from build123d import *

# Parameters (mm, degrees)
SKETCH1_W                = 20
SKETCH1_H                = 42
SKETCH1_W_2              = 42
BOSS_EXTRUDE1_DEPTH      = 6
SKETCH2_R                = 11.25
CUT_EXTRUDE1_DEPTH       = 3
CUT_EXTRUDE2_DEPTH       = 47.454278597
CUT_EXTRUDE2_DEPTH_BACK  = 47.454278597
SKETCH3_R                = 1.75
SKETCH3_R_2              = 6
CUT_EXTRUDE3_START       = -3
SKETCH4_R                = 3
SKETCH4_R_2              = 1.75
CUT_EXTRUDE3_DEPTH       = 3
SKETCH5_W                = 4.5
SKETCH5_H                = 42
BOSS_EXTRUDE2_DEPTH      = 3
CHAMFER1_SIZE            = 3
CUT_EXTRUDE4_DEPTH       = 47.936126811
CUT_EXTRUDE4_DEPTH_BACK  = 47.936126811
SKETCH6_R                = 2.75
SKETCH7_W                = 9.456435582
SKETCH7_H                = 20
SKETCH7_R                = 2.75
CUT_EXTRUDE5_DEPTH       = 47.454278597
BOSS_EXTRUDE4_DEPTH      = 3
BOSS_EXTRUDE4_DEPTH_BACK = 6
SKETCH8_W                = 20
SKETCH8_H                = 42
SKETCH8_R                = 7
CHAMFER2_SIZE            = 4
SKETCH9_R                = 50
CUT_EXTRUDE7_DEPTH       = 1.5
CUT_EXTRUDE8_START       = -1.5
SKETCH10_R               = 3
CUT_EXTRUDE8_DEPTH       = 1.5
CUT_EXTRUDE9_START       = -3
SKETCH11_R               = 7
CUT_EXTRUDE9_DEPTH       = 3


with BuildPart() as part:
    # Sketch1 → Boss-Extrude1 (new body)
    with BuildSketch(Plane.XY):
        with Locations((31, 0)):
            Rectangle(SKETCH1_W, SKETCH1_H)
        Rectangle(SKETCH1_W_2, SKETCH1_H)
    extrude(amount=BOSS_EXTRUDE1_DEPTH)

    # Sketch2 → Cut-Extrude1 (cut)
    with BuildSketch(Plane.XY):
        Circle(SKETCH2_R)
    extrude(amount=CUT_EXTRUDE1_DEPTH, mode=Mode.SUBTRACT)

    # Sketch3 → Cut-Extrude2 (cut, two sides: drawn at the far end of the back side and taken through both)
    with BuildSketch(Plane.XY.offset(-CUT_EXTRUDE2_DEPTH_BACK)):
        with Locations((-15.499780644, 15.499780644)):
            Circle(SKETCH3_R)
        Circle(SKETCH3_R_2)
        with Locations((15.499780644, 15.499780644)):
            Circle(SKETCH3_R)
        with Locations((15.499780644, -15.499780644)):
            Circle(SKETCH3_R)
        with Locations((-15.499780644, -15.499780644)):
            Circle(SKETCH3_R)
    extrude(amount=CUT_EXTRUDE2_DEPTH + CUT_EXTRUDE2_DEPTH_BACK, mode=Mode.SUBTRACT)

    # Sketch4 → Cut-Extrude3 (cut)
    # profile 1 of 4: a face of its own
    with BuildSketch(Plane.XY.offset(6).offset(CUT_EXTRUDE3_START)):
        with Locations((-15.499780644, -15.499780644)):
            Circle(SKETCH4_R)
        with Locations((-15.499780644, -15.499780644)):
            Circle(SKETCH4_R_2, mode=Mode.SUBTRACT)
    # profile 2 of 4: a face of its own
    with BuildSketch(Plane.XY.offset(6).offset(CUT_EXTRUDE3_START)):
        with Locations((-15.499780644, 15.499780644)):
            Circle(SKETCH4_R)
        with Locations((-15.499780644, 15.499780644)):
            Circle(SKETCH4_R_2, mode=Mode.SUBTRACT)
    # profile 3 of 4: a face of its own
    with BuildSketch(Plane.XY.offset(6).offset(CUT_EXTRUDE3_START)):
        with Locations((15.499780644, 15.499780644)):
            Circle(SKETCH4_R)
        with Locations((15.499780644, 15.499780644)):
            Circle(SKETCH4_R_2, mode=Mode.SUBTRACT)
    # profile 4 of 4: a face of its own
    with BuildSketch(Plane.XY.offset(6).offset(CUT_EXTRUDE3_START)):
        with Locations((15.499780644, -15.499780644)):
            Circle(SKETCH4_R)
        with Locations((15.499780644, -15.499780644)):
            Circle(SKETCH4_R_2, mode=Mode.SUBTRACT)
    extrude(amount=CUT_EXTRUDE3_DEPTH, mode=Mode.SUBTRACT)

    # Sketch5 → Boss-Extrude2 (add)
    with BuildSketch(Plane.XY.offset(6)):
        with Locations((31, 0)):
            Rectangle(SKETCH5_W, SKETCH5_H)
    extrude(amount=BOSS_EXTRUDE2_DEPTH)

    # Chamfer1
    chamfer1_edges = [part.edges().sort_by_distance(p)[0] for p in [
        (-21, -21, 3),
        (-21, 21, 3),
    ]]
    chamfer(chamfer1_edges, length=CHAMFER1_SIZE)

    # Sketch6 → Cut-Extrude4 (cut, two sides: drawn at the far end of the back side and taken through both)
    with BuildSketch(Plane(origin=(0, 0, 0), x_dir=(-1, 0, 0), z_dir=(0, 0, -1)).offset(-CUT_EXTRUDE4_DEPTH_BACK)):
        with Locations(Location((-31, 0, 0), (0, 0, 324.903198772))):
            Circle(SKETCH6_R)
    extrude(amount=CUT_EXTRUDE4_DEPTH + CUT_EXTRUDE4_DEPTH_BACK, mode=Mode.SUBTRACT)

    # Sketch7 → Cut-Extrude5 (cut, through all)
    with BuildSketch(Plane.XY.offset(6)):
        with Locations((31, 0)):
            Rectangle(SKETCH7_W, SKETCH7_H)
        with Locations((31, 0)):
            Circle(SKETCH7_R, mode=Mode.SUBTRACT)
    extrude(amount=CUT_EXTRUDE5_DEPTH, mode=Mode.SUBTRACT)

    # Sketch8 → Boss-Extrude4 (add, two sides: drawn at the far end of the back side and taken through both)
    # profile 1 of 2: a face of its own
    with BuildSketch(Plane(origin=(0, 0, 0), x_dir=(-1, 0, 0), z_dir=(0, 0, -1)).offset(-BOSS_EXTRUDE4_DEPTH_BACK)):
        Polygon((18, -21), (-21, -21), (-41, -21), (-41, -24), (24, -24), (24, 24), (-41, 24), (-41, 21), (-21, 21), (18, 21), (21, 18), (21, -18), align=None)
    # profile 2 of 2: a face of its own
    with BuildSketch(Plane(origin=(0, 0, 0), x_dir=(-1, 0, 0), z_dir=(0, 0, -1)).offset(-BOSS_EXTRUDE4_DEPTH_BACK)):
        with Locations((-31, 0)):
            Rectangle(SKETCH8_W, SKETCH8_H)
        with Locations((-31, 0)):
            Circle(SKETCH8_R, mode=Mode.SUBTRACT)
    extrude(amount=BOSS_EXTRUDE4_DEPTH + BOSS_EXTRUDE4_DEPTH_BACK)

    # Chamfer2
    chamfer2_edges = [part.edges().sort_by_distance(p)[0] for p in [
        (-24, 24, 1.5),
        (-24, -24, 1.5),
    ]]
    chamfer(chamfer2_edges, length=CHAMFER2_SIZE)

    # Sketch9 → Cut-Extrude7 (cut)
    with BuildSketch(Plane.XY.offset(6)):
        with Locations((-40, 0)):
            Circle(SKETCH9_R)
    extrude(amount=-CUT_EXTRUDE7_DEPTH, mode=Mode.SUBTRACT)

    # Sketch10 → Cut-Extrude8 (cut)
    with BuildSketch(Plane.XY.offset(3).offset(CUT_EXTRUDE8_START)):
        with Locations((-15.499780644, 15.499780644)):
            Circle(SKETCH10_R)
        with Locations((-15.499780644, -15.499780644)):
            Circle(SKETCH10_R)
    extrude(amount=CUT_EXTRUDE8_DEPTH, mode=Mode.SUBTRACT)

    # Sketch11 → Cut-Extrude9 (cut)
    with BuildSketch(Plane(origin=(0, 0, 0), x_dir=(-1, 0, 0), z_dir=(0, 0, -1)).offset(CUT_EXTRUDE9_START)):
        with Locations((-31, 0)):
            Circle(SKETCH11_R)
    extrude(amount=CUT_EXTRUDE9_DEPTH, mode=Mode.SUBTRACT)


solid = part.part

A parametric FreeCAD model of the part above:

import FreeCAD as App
import Part
import Sketcher
from FreeCAD import Vector
Q = App.Units.Quantity


def edges_at(feature, points):
    """Names of the edges that pass closest to the given points."""
    edges = feature.Shape.Edges
    near = lambda p: min(range(len(edges)), key=lambda i: edges[i].distToShape(Part.Vertex(*p))[0])
    return sorted({f"Edge{near(p) + 1}" for p in points})

doc = App.newDocument("Part")
body = doc.addObject("PartDesign::Body", "Body")

sketch1 = doc.addObject("Sketcher::SketchObject", "Sketch")
body.addObject(sketch1)
sketch1.AttachmentSupport = (doc.XY_Plane, [""])
sketch1.MapMode = "FlatFace"
sketch1.addGeometry(Part.LineSegment(Vector(41, -21, 0), Vector(41, 21, 0)), False)
sketch1.addGeometry(Part.LineSegment(Vector(41, 21, 0), Vector(-21, 21, 0)), False)
sketch1.addGeometry(Part.LineSegment(Vector(-21, 21, 0), Vector(-21, -21, 0)), False)
sketch1.addGeometry(Part.LineSegment(Vector(-21, -21, 0), Vector(41, -21, 0)), False)
sketch1.addConstraint(Sketcher.Constraint("Coincident", 0, 2, 1, 1))
sketch1.addConstraint(Sketcher.Constraint("Coincident", 1, 2, 2, 1))
sketch1.addConstraint(Sketcher.Constraint("Coincident", 2, 2, 3, 1))
sketch1.addConstraint(Sketcher.Constraint("Coincident", 3, 2, 0, 1))
sketch1.addConstraint(Sketcher.Constraint("Vertical", 0))
sketch1.addConstraint(Sketcher.Constraint("Horizontal", 1))
sketch1.addConstraint(Sketcher.Constraint("Vertical", 2))
sketch1.addConstraint(Sketcher.Constraint("Horizontal", 3))
sketch1.addConstraint(Sketcher.Constraint("DistanceX", 1, 2, 1, 1, Q("62 mm")))
sketch1.addConstraint(Sketcher.Constraint("DistanceY", 0, 1, 0, 2, Q("42 mm")))
sketch1.addConstraint(Sketcher.Constraint("DistanceX", -1, 1, 0, 2, Q("41 mm")))
sketch1.addConstraint(Sketcher.Constraint("DistanceY", -1, 1, 0, 2, Q("21 mm")))
pad1 = doc.addObject("PartDesign::Pad", "Pad")
body.addObject(pad1)
pad1.Profile = sketch1
pad1.Length = 6

sketch2 = doc.addObject("Sketcher::SketchObject", "Sketch001")
body.addObject(sketch2)
sketch2.AttachmentSupport = (doc.XY_Plane, [""])
sketch2.MapMode = "FlatFace"
sketch2.addGeometry(Part.Circle(Vector(0, 0, 0), Vector(0, 0, 1), 11.25), False)
sketch2.addConstraint(Sketcher.Constraint("Coincident", 0, 3, -1, 1))
sketch2.addConstraint(Sketcher.Constraint("Diameter", 0, Q("22.5 mm")))
pocket1 = doc.addObject("PartDesign::Pocket", "Pocket")
body.addObject(pocket1)
pocket1.Profile = sketch2
pocket1.Length = 3
pocket1.Reversed = True

sketch3 = doc.addObject("Sketcher::SketchObject", "Sketch002")
body.addObject(sketch3)
sketch3.AttachmentSupport = (doc.XY_Plane, [""])
sketch3.MapMode = "FlatFace"
sketch3.addGeometry(Part.Circle(Vector(-15.499781, 15.499781, 0), Vector(0, 0, 1), 1.75), False)
sketch3.addGeometry(Part.Circle(Vector(0, 0, 0), Vector(0, 0, 1), 6), False)
sketch3.addGeometry(Part.Circle(Vector(15.499781, 15.499781, 0), Vector(0, 0, 1), 1.75), False)
sketch3.addGeometry(Part.Circle(Vector(15.499781, -15.499781, 0), Vector(0, 0, 1), 1.75), False)
sketch3.addGeometry(Part.Circle(Vector(-15.499781, -15.499781, 0), Vector(0, 0, 1), 1.75), False)
sketch3.addConstraint(Sketcher.Constraint("Coincident", 1, 3, -1, 1))
sketch3.addConstraint(Sketcher.Constraint("Equal", 0, 2))
sketch3.addConstraint(Sketcher.Constraint("Equal", 2, 3))
sketch3.addConstraint(Sketcher.Constraint("Equal", 3, 4))
sketch3.addConstraint(Sketcher.Constraint("Symmetric", 0, 3, 3, 3, -1, 1))
sketch3.addConstraint(Sketcher.Constraint("Symmetric", 2, 3, 4, 3, -1, 1))
sketch3.addConstraint(Sketcher.Constraint("Symmetric", 0, 3, 2, 3, -2))
sketch3.addConstraint(Sketcher.Constraint("Diameter", 1, Q("12 mm")))
sketch3.addConstraint(Sketcher.Constraint("Diameter", 0, Q("3.5 mm")))
sketch3.addConstraint(Sketcher.Constraint("DistanceX", 0, 3, -1, 1, Q("15.499781 mm")))
sketch3.addConstraint(Sketcher.Constraint("DistanceY", -1, 1, 0, 3, Q("15.499781 mm")))
pocket2 = doc.addObject("PartDesign::Pocket", "Pocket001")
body.addObject(pocket2)
pocket2.Profile = sketch3
pocket2.Type = "ThroughAll"
pocket2.Midplane = True

sketch4 = doc.addObject("Sketcher::SketchObject", "Sketch003")
body.addObject(sketch4)
sketch4.AttachmentSupport = (doc.XY_Plane, [""])
sketch4.MapMode = "FlatFace"
sketch4.AttachmentOffset = App.Placement(Vector(0, 0, 3), App.Rotation())
sketch4.addGeometry(Part.Circle(Vector(-15.499781, -15.499781, 0), Vector(0, 0, 1), 3), False)
sketch4.addGeometry(Part.Circle(Vector(-15.499781, -15.499781, 0), Vector(0, 0, 1), 1.75), False)
sketch4.addGeometry(Part.Circle(Vector(-15.499781, 15.499781, 0), Vector(0, 0, 1), 3), False)
sketch4.addGeometry(Part.Circle(Vector(-15.499781, 15.499781, 0), Vector(0, 0, 1), 1.75), False)
sketch4.addGeometry(Part.Circle(Vector(15.499781, 15.499781, 0), Vector(0, 0, 1), 3), False)
sketch4.addGeometry(Part.Circle(Vector(15.499781, 15.499781, 0), Vector(0, 0, 1), 1.75), False)
sketch4.addGeometry(Part.Circle(Vector(15.499781, -15.499781, 0), Vector(0, 0, 1), 3), False)
sketch4.addGeometry(Part.Circle(Vector(15.499781, -15.499781, 0), Vector(0, 0, 1), 1.75), False)
sketch4.addConstraint(Sketcher.Constraint("Coincident", 1, 3, 0, 3))
sketch4.addConstraint(Sketcher.Constraint("Coincident", 3, 3, 2, 3))
sketch4.addConstraint(Sketcher.Constraint("Coincident", 5, 3, 4, 3))
sketch4.addConstraint(Sketcher.Constraint("Coincident", 7, 3, 6, 3))
sketch4.addConstraint(Sketcher.Constraint("Equal", 0, 2))
sketch4.addConstraint(Sketcher.Constraint("Equal", 1, 3))
sketch4.addConstraint(Sketcher.Constraint("Equal", 2, 4))
sketch4.addConstraint(Sketcher.Constraint("Equal", 3, 5))
sketch4.addConstraint(Sketcher.Constraint("Equal", 4, 6))
sketch4.addConstraint(Sketcher.Constraint("Equal", 5, 7))
sketch4.addConstraint(Sketcher.Constraint("Symmetric", 0, 3, 4, 3, -1, 1))
sketch4.addConstraint(Sketcher.Constraint("Symmetric", 2, 3, 6, 3, -1, 1))
sketch4.addConstraint(Sketcher.Constraint("Symmetric", 2, 3, 4, 3, -2))
sketch4.addConstraint(Sketcher.Constraint("Diameter", 0, Q("6 mm")))
sketch4.addConstraint(Sketcher.Constraint("Diameter", 1, Q("3.5 mm")))
sketch4.addConstraint(Sketcher.Constraint("DistanceX", 0, 3, -1, 1, Q("15.499781 mm")))
sketch4.addConstraint(Sketcher.Constraint("DistanceY", 0, 3, -1, 1, Q("15.499781 mm")))
pocket3 = doc.addObject("PartDesign::Pocket", "Pocket002")
body.addObject(pocket3)
pocket3.Profile = sketch4
pocket3.Length = 3
pocket3.Reversed = True

sketch5 = doc.addObject("Sketcher::SketchObject", "Sketch004")
body.addObject(sketch5)
sketch5.AttachmentSupport = (doc.XY_Plane, [""])
sketch5.MapMode = "FlatFace"
sketch5.AttachmentOffset = App.Placement(Vector(0, 0, 6), App.Rotation())
sketch5.addGeometry(Part.LineSegment(Vector(28.75, 21, 0), Vector(28.75, -21, 0)), False)
sketch5.addGeometry(Part.LineSegment(Vector(28.75, -21, 0), Vector(33.25, -21, 0)), False)
sketch5.addGeometry(Part.LineSegment(Vector(33.25, -21, 0), Vector(33.25, 21, 0)), False)
sketch5.addGeometry(Part.LineSegment(Vector(33.25, 21, 0), Vector(28.75, 21, 0)), False)
sketch5.addConstraint(Sketcher.Constraint("Coincident", 0, 2, 1, 1))
sketch5.addConstraint(Sketcher.Constraint("Coincident", 1, 2, 2, 1))
sketch5.addConstraint(Sketcher.Constraint("Coincident", 2, 2, 3, 1))
sketch5.addConstraint(Sketcher.Constraint("Coincident", 3, 2, 0, 1))
sketch5.addConstraint(Sketcher.Constraint("Vertical", 0))
sketch5.addConstraint(Sketcher.Constraint("Horizontal", 1))
sketch5.addConstraint(Sketcher.Constraint("Vertical", 2))
sketch5.addConstraint(Sketcher.Constraint("Horizontal", 3))
sketch5.addConstraint(Sketcher.Constraint("DistanceY", 0, 2, 0, 1, Q("42 mm")))
sketch5.addConstraint(Sketcher.Constraint("DistanceX", 1, 1, 1, 2, Q("4.5 mm")))
sketch5.addConstraint(Sketcher.Constraint("DistanceY", 0, 2, -1, 1, Q("21 mm")))
sketch5.addConstraint(Sketcher.Constraint("DistanceX", -1, 1, 0, 2, Q("28.75 mm")))
pad2 = doc.addObject("PartDesign::Pad", "Pad001")
body.addObject(pad2)
pad2.Profile = sketch5
pad2.Length = 3
doc.recompute()

chamfer = doc.addObject("PartDesign::Chamfer", "Chamfer")
body.addObject(chamfer)
chamfer.Base = (pad2, edges_at(pad2, [(-21, -21, 3), (-21, 21, 3)]))
chamfer.Size = 3

sketch6 = doc.addObject("Sketcher::SketchObject", "Sketch005")
body.addObject(sketch6)
sketch6.AttachmentSupport = (doc.XY_Plane, [""])
sketch6.MapMode = "FlatFace"
sketch6.addGeometry(Part.Circle(Vector(31, 0, 0), Vector(0, 0, 1), 2.75), False)
sketch6.addConstraint(Sketcher.Constraint("PointOnObject", 0, 3, -1))
sketch6.addConstraint(Sketcher.Constraint("Diameter", 0, Q("5.5 mm")))
sketch6.addConstraint(Sketcher.Constraint("DistanceX", -1, 1, 0, 3, Q("31 mm")))
pocket4 = doc.addObject("PartDesign::Pocket", "Pocket003")
body.addObject(pocket4)
pocket4.Profile = sketch6
pocket4.Type = "ThroughAll"
pocket4.Midplane = True

sketch7 = doc.addObject("Sketcher::SketchObject", "Sketch006")
body.addObject(sketch7)
sketch7.AttachmentSupport = (doc.XY_Plane, [""])
sketch7.MapMode = "FlatFace"
sketch7.AttachmentOffset = App.Placement(Vector(0, 0, 6), App.Rotation())
sketch7.addGeometry(Part.LineSegment(Vector(26.271782, 10, 0), Vector(26.271782, -10, 0)), False)
sketch7.addGeometry(Part.LineSegment(Vector(26.271782, -10, 0), Vector(35.728218, -10, 0)), False)
sketch7.addGeometry(Part.LineSegment(Vector(35.728218, -10, 0), Vector(35.728218, 10, 0)), False)
sketch7.addGeometry(Part.LineSegment(Vector(35.728218, 10, 0), Vector(26.271782, 10, 0)), False)
sketch7.addGeometry(Part.Circle(Vector(31, 0, 0), Vector(0, 0, 1), 2.75), False)
sketch7.addConstraint(Sketcher.Constraint("Coincident", 0, 2, 1, 1))
sketch7.addConstraint(Sketcher.Constraint("Coincident", 1, 2, 2, 1))
sketch7.addConstraint(Sketcher.Constraint("Coincident", 2, 2, 3, 1))
sketch7.addConstraint(Sketcher.Constraint("Coincident", 3, 2, 0, 1))
sketch7.addConstraint(Sketcher.Constraint("Vertical", 0))
sketch7.addConstraint(Sketcher.Constraint("Horizontal", 1))
sketch7.addConstraint(Sketcher.Constraint("Vertical", 2))
sketch7.addConstraint(Sketcher.Constraint("Horizontal", 3))
sketch7.addConstraint(Sketcher.Constraint("PointOnObject", 4, 3, -1))
sketch7.addConstraint(Sketcher.Constraint("Diameter", 4, Q("5.5 mm")))
sketch7.addConstraint(Sketcher.Constraint("DistanceY", 0, 2, 0, 1, Q("20 mm")))
sketch7.addConstraint(Sketcher.Constraint("DistanceX", -1, 1, 4, 3, Q("31 mm")))
sketch7.addConstraint(Sketcher.Constraint("DistanceY", 0, 2, -1, 1, Q("10 mm")))
sketch7.addConstraint(Sketcher.Constraint("DistanceX", 1, 1, 1, 2, Q("9.456436 mm")))
sketch7.addConstraint(Sketcher.Constraint("DistanceX", -1, 1, 0, 2, Q("26.271782 mm")))
pocket5 = doc.addObject("PartDesign::Pocket", "Pocket004")
body.addObject(pocket5)
pocket5.Profile = sketch7
pocket5.Type = "ThroughAll"
pocket5.Reversed = True

sketch8 = doc.addObject("Sketcher::SketchObject", "Sketch007")
body.addObject(sketch8)
sketch8.AttachmentSupport = (doc.XY_Plane, [""])
sketch8.MapMode = "FlatFace"
sketch8.addGeometry(Part.LineSegment(Vector(41, -24, 0), Vector(-24, -24, 0)), False)
sketch8.addGeometry(Part.LineSegment(Vector(-24, -24, 0), Vector(-24, 24, 0)), False)
sketch8.addGeometry(Part.LineSegment(Vector(-24, 24, 0), Vector(41, 24, 0)), False)
sketch8.addGeometry(Part.LineSegment(Vector(41, 24, 0), Vector(41, -24, 0)), False)
sketch8.addGeometry(Part.LineSegment(Vector(-18, -21, 0), Vector(21, -21, 0)), False)
sketch8.addGeometry(Part.LineSegment(Vector(21, -21, 0), Vector(21, 21, 0)), False)
sketch8.addGeometry(Part.LineSegment(Vector(21, 21, 0), Vector(-18, 21, 0)), False)
sketch8.addGeometry(Part.LineSegment(Vector(-18, 21, 0), Vector(-21, 18, 0)), False)
sketch8.addGeometry(Part.LineSegment(Vector(-21, 18, 0), Vector(-21, -18, 0)), False)
sketch8.addGeometry(Part.LineSegment(Vector(-21, -18, 0), Vector(-18, -21, 0)), False)
sketch8.addGeometry(Part.Circle(Vector(31, 0, 0), Vector(0, 0, 1), 7), False)
sketch8.addConstraint(Sketcher.Constraint("Coincident", 0, 2, 1, 1))
sketch8.addConstraint(Sketcher.Constraint("Coincident", 1, 2, 2, 1))
sketch8.addConstraint(Sketcher.Constraint("Coincident", 2, 2, 3, 1))
sketch8.addConstraint(Sketcher.Constraint("Coincident", 3, 2, 0, 1))
sketch8.addConstraint(Sketcher.Constraint("Coincident", 4, 2, 5, 1))
sketch8.addConstraint(Sketcher.Constraint("Coincident", 5, 2, 6, 1))
sketch8.addConstraint(Sketcher.Constraint("Coincident", 6, 2, 7, 1))
sketch8.addConstraint(Sketcher.Constraint("Coincident", 7, 2, 8, 1))
sketch8.addConstraint(Sketcher.Constraint("Coincident", 8, 2, 9, 1))
sketch8.addConstraint(Sketcher.Constraint("Coincident", 9, 2, 4, 1))
sketch8.addConstraint(Sketcher.Constraint("Horizontal", 0))
sketch8.addConstraint(Sketcher.Constraint("Vertical", 1))
sketch8.addConstraint(Sketcher.Constraint("Horizontal", 2))
sketch8.addConstraint(Sketcher.Constraint("Vertical", 3))
sketch8.addConstraint(Sketcher.Constraint("Horizontal", 4))
sketch8.addConstraint(Sketcher.Constraint("Vertical", 5))
sketch8.addConstraint(Sketcher.Constraint("Horizontal", 6))
sketch8.addConstraint(Sketcher.Constraint("Vertical", 8))
sketch8.addConstraint(Sketcher.Constraint("Symmetric", 6, 2, 9, 2, -1))
sketch8.addConstraint(Sketcher.Constraint("PointOnObject", 10, 3, -1))
sketch8.addConstraint(Sketcher.Constraint("Perpendicular", 7, 9))
sketch8.addConstraint(Sketcher.Constraint("Equal", 7, 9))
sketch8.addConstraint(Sketcher.Constraint("Diameter", 10, Q("14 mm")))
sketch8.addConstraint(Sketcher.Constraint("DistanceX", 0, 2, 0, 1, Q("65 mm")))
sketch8.addConstraint(Sketcher.Constraint("DistanceX", 4, 1, 4, 2, Q("39 mm")))
sketch8.addConstraint(Sketcher.Constraint("DistanceY", 1, 1, 1, 2, Q("48 mm")))
sketch8.addConstraint(Sketcher.Constraint("DistanceY", 5, 1, 5, 2, Q("42 mm")))
sketch8.addConstraint(Sketcher.Constraint("DistanceY", 8, 2, 8, 1, Q("36 mm")))
sketch8.addConstraint(Sketcher.Constraint("DistanceX", -1, 1, 10, 3, Q("31 mm")))
sketch8.addConstraint(Sketcher.Constraint("DistanceX", 0, 2, -1, 1, Q("24 mm")))
sketch8.addConstraint(Sketcher.Constraint("DistanceY", 0, 2, -1, 1, Q("24 mm")))
sketch8.addConstraint(Sketcher.Constraint("DistanceX", -1, 1, 4, 2, Q("21 mm")))
pad3 = doc.addObject("PartDesign::Pad", "Pad002")
body.addObject(pad3)
pad3.Profile = sketch8
pad3.Type = "TwoLengths"
pad3.Length = 3
pad3.Length2 = 6
pad3.Reversed = True
doc.recompute()

chamfer2 = doc.addObject("PartDesign::Chamfer", "Chamfer001")
body.addObject(chamfer2)
chamfer2.Base = (pad3, edges_at(pad3, [(-24, 24, 1.5), (-24, -24, 1.5)]))
chamfer2.Size = 4

sketch9 = doc.addObject("Sketcher::SketchObject", "Sketch008")
body.addObject(sketch9)
sketch9.AttachmentSupport = (doc.XY_Plane, [""])
sketch9.MapMode = "FlatFace"
sketch9.AttachmentOffset = App.Placement(Vector(0, 0, 6), App.Rotation())
sketch9.addGeometry(Part.Circle(Vector(-40, 0, 0), Vector(0, 0, 1), 50), False)
sketch9.addConstraint(Sketcher.Constraint("PointOnObject", 0, 3, -1))
sketch9.addConstraint(Sketcher.Constraint("Diameter", 0, Q("100 mm")))
sketch9.addConstraint(Sketcher.Constraint("DistanceX", 0, 3, -1, 1, Q("40 mm")))
pocket6 = doc.addObject("PartDesign::Pocket", "Pocket005")
body.addObject(pocket6)
pocket6.Profile = sketch9
pocket6.Length = 1.5

sketch10 = doc.addObject("Sketcher::SketchObject", "Sketch009")
body.addObject(sketch10)
sketch10.AttachmentSupport = (doc.XY_Plane, [""])
sketch10.MapMode = "FlatFace"
sketch10.AttachmentOffset = App.Placement(Vector(0, 0, 1.5), App.Rotation())
sketch10.addGeometry(Part.Circle(Vector(-15.499781, 15.499781, 0), Vector(0, 0, 1), 3), False)
sketch10.addGeometry(Part.Circle(Vector(-15.499781, -15.499781, 0), Vector(0, 0, 1), 3), False)
sketch10.addConstraint(Sketcher.Constraint("Equal", 0, 1))
sketch10.addConstraint(Sketcher.Constraint("Symmetric", 0, 3, 1, 3, -1))
sketch10.addConstraint(Sketcher.Constraint("Diameter", 0, Q("6 mm")))
sketch10.addConstraint(Sketcher.Constraint("DistanceX", 0, 3, -1, 1, Q("15.499781 mm")))
sketch10.addConstraint(Sketcher.Constraint("DistanceY", -1, 1, 0, 3, Q("15.499781 mm")))
pocket7 = doc.addObject("PartDesign::Pocket", "Pocket006")
body.addObject(pocket7)
pocket7.Profile = sketch10
pocket7.Length = 1.5
pocket7.Reversed = True

sketch11 = doc.addObject("Sketcher::SketchObject", "Sketch010")
body.addObject(sketch11)
sketch11.AttachmentSupport = (doc.XY_Plane, [""])
sketch11.MapMode = "FlatFace"
sketch11.AttachmentOffset = App.Placement(Vector(0, 0, 3), App.Rotation())
sketch11.addGeometry(Part.Circle(Vector(31, 0, 0), Vector(0, 0, 1), 7), False)
sketch11.addConstraint(Sketcher.Constraint("PointOnObject", 0, 3, -1))
sketch11.addConstraint(Sketcher.Constraint("Diameter", 0, Q("14 mm")))
sketch11.addConstraint(Sketcher.Constraint("DistanceX", -1, 1, 0, 3, Q("31 mm")))
pocket8 = doc.addObject("PartDesign::Pocket", "Pocket007")
body.addObject(pocket8)
pocket8.Profile = sketch11
pocket8.Length = 3

doc.recompute()
